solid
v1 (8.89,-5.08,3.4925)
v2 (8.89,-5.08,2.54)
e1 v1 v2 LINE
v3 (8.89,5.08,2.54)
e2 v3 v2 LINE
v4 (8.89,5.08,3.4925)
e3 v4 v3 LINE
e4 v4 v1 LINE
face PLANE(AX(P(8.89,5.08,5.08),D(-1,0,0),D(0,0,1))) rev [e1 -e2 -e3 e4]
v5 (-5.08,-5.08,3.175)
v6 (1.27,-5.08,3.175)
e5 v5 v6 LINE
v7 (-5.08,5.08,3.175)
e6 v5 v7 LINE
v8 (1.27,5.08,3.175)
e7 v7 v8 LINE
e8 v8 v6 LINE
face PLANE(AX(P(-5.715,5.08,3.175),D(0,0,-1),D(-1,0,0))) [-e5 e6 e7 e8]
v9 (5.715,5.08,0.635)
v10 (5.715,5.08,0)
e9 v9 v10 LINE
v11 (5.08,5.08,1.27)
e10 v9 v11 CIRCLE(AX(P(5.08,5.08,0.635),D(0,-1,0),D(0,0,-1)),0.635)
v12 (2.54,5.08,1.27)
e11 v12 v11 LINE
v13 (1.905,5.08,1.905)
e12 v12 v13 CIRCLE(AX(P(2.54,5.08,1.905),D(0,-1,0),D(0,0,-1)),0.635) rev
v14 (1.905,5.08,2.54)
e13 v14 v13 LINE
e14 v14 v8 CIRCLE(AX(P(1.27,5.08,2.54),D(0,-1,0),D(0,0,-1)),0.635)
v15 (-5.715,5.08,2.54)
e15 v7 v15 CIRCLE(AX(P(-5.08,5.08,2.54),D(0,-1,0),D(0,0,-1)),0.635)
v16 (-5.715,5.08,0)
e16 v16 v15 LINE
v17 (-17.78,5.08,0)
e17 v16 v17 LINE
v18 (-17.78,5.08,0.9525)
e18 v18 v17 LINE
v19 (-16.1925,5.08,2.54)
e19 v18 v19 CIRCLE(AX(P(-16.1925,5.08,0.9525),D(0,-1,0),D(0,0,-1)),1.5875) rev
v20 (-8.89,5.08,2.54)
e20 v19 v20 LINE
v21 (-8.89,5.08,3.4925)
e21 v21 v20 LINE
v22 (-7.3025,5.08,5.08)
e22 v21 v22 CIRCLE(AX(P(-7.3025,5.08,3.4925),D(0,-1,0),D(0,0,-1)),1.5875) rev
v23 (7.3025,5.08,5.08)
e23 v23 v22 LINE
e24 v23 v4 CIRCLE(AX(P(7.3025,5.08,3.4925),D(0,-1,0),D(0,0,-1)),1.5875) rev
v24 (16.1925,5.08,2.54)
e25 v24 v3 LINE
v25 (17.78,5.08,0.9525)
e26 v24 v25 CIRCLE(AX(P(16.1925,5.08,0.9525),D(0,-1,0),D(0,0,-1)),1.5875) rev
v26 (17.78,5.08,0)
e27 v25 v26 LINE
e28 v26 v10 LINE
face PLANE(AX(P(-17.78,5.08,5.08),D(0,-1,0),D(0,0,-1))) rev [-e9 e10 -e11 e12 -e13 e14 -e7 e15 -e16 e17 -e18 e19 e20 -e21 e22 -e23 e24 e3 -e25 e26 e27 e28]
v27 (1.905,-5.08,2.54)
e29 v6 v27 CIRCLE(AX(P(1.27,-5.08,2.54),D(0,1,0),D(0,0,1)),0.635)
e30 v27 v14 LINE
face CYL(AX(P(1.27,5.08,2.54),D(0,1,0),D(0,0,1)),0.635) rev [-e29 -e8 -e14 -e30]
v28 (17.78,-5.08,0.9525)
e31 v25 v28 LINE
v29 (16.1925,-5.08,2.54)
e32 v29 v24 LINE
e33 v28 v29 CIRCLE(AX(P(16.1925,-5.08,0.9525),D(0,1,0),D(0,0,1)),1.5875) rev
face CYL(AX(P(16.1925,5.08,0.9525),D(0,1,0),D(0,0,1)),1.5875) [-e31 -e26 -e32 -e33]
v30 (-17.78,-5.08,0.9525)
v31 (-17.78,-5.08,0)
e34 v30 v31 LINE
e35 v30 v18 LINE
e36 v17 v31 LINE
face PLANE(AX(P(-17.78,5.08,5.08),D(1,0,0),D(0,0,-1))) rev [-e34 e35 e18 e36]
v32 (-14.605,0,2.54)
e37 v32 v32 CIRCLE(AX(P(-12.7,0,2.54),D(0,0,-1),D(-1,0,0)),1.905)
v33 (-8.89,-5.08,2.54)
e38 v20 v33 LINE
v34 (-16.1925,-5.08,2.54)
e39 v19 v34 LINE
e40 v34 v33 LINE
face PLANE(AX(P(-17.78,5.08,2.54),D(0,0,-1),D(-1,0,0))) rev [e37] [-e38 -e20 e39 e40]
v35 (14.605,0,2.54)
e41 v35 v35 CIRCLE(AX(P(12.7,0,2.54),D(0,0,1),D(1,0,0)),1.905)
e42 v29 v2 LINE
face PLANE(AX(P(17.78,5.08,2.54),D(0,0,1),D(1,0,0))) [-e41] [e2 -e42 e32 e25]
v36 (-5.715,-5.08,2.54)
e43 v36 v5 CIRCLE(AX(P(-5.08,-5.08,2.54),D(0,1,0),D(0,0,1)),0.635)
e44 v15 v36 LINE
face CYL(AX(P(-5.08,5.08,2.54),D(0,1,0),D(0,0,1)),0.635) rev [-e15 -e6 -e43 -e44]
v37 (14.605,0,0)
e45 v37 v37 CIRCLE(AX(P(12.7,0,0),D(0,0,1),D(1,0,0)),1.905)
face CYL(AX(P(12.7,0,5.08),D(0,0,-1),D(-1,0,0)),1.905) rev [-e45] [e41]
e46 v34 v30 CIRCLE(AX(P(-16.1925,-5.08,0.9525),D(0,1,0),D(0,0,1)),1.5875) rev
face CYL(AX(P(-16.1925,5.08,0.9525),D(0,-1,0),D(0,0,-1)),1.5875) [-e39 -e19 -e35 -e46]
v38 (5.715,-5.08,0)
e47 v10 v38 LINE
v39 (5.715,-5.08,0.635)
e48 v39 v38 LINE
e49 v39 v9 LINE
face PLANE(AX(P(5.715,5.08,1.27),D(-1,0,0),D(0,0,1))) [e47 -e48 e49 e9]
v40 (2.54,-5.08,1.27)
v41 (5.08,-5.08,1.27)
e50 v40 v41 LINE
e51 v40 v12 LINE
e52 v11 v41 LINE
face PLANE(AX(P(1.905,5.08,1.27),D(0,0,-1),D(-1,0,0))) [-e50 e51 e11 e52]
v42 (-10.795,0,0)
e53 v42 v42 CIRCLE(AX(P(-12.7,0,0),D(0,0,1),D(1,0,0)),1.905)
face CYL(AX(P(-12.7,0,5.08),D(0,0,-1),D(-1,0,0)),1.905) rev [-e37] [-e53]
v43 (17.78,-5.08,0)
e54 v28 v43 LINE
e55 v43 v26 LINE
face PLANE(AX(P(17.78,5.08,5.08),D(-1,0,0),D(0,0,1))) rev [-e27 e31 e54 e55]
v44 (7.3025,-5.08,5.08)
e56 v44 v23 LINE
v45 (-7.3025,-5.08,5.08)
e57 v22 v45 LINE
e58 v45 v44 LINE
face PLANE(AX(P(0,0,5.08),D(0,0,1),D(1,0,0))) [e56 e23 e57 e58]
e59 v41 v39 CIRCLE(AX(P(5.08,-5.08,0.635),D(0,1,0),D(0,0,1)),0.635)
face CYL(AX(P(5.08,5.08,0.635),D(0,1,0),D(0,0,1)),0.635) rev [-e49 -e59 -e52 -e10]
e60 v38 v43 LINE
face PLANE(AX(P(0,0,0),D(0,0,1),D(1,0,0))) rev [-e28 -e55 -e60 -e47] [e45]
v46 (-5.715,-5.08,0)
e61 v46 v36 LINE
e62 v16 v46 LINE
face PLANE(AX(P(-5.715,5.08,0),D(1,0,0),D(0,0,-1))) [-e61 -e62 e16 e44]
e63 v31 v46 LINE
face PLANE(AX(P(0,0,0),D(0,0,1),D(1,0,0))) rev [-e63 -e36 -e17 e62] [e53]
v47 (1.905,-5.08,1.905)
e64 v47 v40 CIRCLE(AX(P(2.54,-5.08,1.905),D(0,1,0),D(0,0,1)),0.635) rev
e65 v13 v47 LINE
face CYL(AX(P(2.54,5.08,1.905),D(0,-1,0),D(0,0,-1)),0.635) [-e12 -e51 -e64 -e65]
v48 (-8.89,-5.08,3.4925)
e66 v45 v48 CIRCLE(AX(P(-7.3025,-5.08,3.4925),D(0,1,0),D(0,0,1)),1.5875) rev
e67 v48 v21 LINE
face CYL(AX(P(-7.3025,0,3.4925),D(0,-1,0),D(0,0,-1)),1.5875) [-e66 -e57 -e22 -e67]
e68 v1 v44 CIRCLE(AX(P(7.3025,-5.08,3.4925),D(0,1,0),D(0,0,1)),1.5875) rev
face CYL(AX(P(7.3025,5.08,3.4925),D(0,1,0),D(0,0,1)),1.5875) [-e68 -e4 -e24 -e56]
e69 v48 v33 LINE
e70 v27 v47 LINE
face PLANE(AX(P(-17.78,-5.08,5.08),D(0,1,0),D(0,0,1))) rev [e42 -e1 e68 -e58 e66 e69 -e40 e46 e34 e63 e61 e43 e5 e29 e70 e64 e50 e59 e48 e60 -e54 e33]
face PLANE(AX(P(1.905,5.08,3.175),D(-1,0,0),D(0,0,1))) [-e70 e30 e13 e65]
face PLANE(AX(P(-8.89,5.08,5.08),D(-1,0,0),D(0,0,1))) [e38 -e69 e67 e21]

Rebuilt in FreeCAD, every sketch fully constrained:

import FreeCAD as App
import Part
import Sketcher
from FreeCAD import Vector
Q = App.Units.Quantity


def edges_at(feature, points):
    """Names of the edges that pass closest to the given points."""
    edges = feature.Shape.Edges
    near = lambda p: min(range(len(edges)), key=lambda i: edges[i].distToShape(Part.Vertex(*p))[0])
    return sorted({f"Edge{near(p) + 1}" for p in points})

doc = App.newDocument("Part")
body = doc.addObject("PartDesign::Body", "Body")

# Sketch on XY plane
sketch1 = body.newObject("Sketcher::SketchObject", "Sketch")
sketch1.AttachmentSupport = (doc.getObject("XY_Plane"), [""])
sketch1.MapMode = "FlatFace"
sketch1.addGeometry([
    Part.LineSegment(Vector(-17.8, 5.1, 0), Vector(-17.8, -5.1, 0)),  # 0
    Part.LineSegment(Vector(-17.8, -5.1, 0), Vector(17.8, -5.1, 0)),  # 1
    Part.LineSegment(Vector(17.8, -5.1, 0), Vector(17.8, 5.1, 0)),  # 2
    Part.LineSegment(Vector(17.8, 5.1, 0), Vector(-17.8, 5.1, 0)),  # 3
    Part.Circle(Vector(-12.7, 0, 0), Vector(0, 0, 1), 1.9),  # 4
    Part.Circle(Vector(12.7, 0, 0), Vector(0, 0, 1), 1.9),  # 5
], False)
sketch1.addConstraint([
    Sketcher.Constraint("Coincident", 0, 2, 1, 1),
    Sketcher.Constraint("Coincident", 1, 2, 2, 1),
    Sketcher.Constraint("Coincident", 2, 2, 3, 1),
    Sketcher.Constraint("Coincident", 3, 2, 0, 1),
    Sketcher.Constraint("Vertical", 0),
    Sketcher.Constraint("Horizontal", 1),
    Sketcher.Constraint("Vertical", 2),
    Sketcher.Constraint("Horizontal", 3),
    Sketcher.Constraint("Equal", 4, 5),
    Sketcher.Constraint("Symmetric", 4, 3, 5, 3, -1, 1),
    Sketcher.Constraint("Symmetric", 0, 2, 2, 2, -1, 1),
    Sketcher.Constraint("PointOnObject", 4, 3, -1),
    Sketcher.Constraint("Diameter", 4, Q("0.15 in")),
    Sketcher.Constraint("DistanceX", 1, 1, 1, 2, Q("1.4 in")),
    Sketcher.Constraint("DistanceY", 0, 2, 0, 1, Q("0.4 in")),
    Sketcher.Constraint("DistanceX", 4, 3, 5, 3, Q("1 in")),
])
pad1 = body.newObject("PartDesign::Pad", "Pad")
pad1.Profile = sketch1
pad1.Length = Q("0.2 in")

# Sketch on XZ plane
sketch2 = body.newObject("Sketcher::SketchObject", "Sketch001")
sketch2.AttachmentSupport = (doc.getObject("XZ_Plane"), [""])
sketch2.MapMode = "FlatFace"
sketch2.AttachmentOffset = App.Placement(Vector(0, 0, 0.2 * 25.4), App.Rotation())
sketch2.addGeometry([
    Part.LineSegment(Vector(-5.7, 0, 0), Vector(5.7, 0, 0)),  # 0
    Part.LineSegment(Vector(5.7, 0, 0), Vector(5.7, 1.3, 0)),  # 1
    Part.LineSegment(Vector(5.7, 1.3, 0), Vector(1.9, 1.3, 0)),  # 2
    Part.LineSegment(Vector(1.9, 1.3, 0), Vector(1.9, 3.2, 0)),  # 3
    Part.LineSegment(Vector(1.9, 3.2, 0), Vector(-5.7, 3.2, 0)),  # 4
    Part.LineSegment(Vector(-5.7, 3.2, 0), Vector(-5.7, 0, 0)),  # 5
    Part.LineSegment(Vector(-17.8, 5.1, 0), Vector(-17.8, 2.5, 0)),  # 6
    Part.LineSegment(Vector(-17.8, 2.5, 0), Vector(-8.9, 2.5, 0)),  # 7
    Part.LineSegment(Vector(-8.9, 2.5, 0), Vector(-8.9, 5.1, 0)),  # 8
    Part.LineSegment(Vector(-8.9, 5.1, 0), Vector(-17.8, 5.1, 0)),  # 9
    Part.LineSegment(Vector(8.9, 5.1, 0), Vector(8.9, 2.5, 0)),  # 10
    Part.LineSegment(Vector(8.9, 2.5, 0), Vector(17.8, 2.5, 0)),  # 11
    Part.LineSegment(Vector(17.8, 2.5, 0), Vector(17.8, 5.1, 0)),  # 12
    Part.LineSegment(Vector(17.8, 5.1, 0), Vector(8.9, 5.1, 0)),  # 13
], False)
sketch2.addConstraint([
    Sketcher.Constraint("Coincident", 0, 2, 1, 1),
    Sketcher.Constraint("Coincident", 1, 2, 2, 1),
    Sketcher.Constraint("Coincident", 2, 2, 3, 1),
    Sketcher.Constraint("Coincident", 3, 2, 4, 1),
    Sketcher.Constraint("Coincident", 4, 2, 5, 1),
    Sketcher.Constraint("Coincident", 5, 2, 0, 1),
    Sketcher.Constraint("Coincident", 6, 2, 7, 1),
    Sketcher.Constraint("Coincident", 7, 2, 8, 1),
    Sketcher.Constraint("Coincident", 8, 2, 9, 1),
    Sketcher.Constraint("Coincident", 9, 2, 6, 1),
    Sketcher.Constraint("Coincident", 10, 2, 11, 1),
    Sketcher.Constraint("Coincident", 11, 2, 12, 1),
    Sketcher.Constraint("Coincident", 12, 2, 13, 1),
    Sketcher.Constraint("Coincident", 13, 2, 10, 1),
    Sketcher.Constraint("Horizontal", 0),
    Sketcher.Constraint("Vertical", 1),
    Sketcher.Constraint("Horizontal", 2),
    Sketcher.Constraint("Vertical", 3),
    Sketcher.Constraint("Horizontal", 4),
    Sketcher.Constraint("Vertical", 5),
    Sketcher.Constraint("Vertical", 6),
    Sketcher.Constraint("Horizontal", 7),
    Sketcher.Constraint("Vertical", 8),
    Sketcher.Constraint("Horizontal", 9),
    Sketcher.Constraint("Vertical", 10),
    Sketcher.Constraint("Horizontal", 11),
    Sketcher.Constraint("Vertical", 12),
    Sketcher.Constraint("Horizontal", 13),
    Sketcher.Constraint("Symmetric", 0, 2, 5, 2, -1, 1),
    Sketcher.Constraint("Symmetric", 7, 2, 10, 2, -2),
    Sketcher.Constraint("Symmetric", 9, 2, 12, 2, -2),
    Sketcher.Constraint("DistanceX", 4, 2, 4, 1, Q("0.3 in")),
    Sketcher.Constraint("DistanceY", 6, 2, 6, 1, Q("0.1 in")),
    Sketcher.Constraint("DistanceX", 0, 1, 0, 2, Q("0.45 in")),
    Sketcher.Constraint("DistanceX", 7, 1, 7, 2, Q("0.35 in")),
    Sketcher.Constraint("DistanceY", 1, 1, 1, 2, Q("0.05 in")),
    Sketcher.Constraint("DistanceX", 6, 2, -1, 1, Q("0.7 in")),
    Sketcher.Constraint("DistanceY", -1, 1, 6, 2, Q("0.1 in")),
    Sketcher.Constraint("DistanceY", 3, 1, 3, 2, Q("0.075 in")),
])
pocket1 = body.newObject("PartDesign::Pocket", "Pocket")
pocket1.Profile = sketch2
pocket1.Type = "ThroughAll"
doc.recompute()

fillet = body.newObject("PartDesign::Fillet", "Fillet")
fillet.Base = (pocket1, edges_at(pocket1, [
    (-17.78, 0, 2.54),
    (-8.89, 0, 5.08),
    (8.89, 0, 5.08),
    (17.78, 0, 2.54),
]))
fillet.Radius = Q("0.0625 in")
doc.recompute()

fillet2 = body.newObject("PartDesign::Fillet", "Fillet001")
fillet2.Base = (fillet, edges_at(fillet, [
    (-5.715, 0, 3.175),
    (1.905, 0, 3.175),
    (1.905, 0, 1.27),
    (5.715, 0, 1.27),
]))
fillet2.Radius = Q("0.025 in")

doc.recompute()
